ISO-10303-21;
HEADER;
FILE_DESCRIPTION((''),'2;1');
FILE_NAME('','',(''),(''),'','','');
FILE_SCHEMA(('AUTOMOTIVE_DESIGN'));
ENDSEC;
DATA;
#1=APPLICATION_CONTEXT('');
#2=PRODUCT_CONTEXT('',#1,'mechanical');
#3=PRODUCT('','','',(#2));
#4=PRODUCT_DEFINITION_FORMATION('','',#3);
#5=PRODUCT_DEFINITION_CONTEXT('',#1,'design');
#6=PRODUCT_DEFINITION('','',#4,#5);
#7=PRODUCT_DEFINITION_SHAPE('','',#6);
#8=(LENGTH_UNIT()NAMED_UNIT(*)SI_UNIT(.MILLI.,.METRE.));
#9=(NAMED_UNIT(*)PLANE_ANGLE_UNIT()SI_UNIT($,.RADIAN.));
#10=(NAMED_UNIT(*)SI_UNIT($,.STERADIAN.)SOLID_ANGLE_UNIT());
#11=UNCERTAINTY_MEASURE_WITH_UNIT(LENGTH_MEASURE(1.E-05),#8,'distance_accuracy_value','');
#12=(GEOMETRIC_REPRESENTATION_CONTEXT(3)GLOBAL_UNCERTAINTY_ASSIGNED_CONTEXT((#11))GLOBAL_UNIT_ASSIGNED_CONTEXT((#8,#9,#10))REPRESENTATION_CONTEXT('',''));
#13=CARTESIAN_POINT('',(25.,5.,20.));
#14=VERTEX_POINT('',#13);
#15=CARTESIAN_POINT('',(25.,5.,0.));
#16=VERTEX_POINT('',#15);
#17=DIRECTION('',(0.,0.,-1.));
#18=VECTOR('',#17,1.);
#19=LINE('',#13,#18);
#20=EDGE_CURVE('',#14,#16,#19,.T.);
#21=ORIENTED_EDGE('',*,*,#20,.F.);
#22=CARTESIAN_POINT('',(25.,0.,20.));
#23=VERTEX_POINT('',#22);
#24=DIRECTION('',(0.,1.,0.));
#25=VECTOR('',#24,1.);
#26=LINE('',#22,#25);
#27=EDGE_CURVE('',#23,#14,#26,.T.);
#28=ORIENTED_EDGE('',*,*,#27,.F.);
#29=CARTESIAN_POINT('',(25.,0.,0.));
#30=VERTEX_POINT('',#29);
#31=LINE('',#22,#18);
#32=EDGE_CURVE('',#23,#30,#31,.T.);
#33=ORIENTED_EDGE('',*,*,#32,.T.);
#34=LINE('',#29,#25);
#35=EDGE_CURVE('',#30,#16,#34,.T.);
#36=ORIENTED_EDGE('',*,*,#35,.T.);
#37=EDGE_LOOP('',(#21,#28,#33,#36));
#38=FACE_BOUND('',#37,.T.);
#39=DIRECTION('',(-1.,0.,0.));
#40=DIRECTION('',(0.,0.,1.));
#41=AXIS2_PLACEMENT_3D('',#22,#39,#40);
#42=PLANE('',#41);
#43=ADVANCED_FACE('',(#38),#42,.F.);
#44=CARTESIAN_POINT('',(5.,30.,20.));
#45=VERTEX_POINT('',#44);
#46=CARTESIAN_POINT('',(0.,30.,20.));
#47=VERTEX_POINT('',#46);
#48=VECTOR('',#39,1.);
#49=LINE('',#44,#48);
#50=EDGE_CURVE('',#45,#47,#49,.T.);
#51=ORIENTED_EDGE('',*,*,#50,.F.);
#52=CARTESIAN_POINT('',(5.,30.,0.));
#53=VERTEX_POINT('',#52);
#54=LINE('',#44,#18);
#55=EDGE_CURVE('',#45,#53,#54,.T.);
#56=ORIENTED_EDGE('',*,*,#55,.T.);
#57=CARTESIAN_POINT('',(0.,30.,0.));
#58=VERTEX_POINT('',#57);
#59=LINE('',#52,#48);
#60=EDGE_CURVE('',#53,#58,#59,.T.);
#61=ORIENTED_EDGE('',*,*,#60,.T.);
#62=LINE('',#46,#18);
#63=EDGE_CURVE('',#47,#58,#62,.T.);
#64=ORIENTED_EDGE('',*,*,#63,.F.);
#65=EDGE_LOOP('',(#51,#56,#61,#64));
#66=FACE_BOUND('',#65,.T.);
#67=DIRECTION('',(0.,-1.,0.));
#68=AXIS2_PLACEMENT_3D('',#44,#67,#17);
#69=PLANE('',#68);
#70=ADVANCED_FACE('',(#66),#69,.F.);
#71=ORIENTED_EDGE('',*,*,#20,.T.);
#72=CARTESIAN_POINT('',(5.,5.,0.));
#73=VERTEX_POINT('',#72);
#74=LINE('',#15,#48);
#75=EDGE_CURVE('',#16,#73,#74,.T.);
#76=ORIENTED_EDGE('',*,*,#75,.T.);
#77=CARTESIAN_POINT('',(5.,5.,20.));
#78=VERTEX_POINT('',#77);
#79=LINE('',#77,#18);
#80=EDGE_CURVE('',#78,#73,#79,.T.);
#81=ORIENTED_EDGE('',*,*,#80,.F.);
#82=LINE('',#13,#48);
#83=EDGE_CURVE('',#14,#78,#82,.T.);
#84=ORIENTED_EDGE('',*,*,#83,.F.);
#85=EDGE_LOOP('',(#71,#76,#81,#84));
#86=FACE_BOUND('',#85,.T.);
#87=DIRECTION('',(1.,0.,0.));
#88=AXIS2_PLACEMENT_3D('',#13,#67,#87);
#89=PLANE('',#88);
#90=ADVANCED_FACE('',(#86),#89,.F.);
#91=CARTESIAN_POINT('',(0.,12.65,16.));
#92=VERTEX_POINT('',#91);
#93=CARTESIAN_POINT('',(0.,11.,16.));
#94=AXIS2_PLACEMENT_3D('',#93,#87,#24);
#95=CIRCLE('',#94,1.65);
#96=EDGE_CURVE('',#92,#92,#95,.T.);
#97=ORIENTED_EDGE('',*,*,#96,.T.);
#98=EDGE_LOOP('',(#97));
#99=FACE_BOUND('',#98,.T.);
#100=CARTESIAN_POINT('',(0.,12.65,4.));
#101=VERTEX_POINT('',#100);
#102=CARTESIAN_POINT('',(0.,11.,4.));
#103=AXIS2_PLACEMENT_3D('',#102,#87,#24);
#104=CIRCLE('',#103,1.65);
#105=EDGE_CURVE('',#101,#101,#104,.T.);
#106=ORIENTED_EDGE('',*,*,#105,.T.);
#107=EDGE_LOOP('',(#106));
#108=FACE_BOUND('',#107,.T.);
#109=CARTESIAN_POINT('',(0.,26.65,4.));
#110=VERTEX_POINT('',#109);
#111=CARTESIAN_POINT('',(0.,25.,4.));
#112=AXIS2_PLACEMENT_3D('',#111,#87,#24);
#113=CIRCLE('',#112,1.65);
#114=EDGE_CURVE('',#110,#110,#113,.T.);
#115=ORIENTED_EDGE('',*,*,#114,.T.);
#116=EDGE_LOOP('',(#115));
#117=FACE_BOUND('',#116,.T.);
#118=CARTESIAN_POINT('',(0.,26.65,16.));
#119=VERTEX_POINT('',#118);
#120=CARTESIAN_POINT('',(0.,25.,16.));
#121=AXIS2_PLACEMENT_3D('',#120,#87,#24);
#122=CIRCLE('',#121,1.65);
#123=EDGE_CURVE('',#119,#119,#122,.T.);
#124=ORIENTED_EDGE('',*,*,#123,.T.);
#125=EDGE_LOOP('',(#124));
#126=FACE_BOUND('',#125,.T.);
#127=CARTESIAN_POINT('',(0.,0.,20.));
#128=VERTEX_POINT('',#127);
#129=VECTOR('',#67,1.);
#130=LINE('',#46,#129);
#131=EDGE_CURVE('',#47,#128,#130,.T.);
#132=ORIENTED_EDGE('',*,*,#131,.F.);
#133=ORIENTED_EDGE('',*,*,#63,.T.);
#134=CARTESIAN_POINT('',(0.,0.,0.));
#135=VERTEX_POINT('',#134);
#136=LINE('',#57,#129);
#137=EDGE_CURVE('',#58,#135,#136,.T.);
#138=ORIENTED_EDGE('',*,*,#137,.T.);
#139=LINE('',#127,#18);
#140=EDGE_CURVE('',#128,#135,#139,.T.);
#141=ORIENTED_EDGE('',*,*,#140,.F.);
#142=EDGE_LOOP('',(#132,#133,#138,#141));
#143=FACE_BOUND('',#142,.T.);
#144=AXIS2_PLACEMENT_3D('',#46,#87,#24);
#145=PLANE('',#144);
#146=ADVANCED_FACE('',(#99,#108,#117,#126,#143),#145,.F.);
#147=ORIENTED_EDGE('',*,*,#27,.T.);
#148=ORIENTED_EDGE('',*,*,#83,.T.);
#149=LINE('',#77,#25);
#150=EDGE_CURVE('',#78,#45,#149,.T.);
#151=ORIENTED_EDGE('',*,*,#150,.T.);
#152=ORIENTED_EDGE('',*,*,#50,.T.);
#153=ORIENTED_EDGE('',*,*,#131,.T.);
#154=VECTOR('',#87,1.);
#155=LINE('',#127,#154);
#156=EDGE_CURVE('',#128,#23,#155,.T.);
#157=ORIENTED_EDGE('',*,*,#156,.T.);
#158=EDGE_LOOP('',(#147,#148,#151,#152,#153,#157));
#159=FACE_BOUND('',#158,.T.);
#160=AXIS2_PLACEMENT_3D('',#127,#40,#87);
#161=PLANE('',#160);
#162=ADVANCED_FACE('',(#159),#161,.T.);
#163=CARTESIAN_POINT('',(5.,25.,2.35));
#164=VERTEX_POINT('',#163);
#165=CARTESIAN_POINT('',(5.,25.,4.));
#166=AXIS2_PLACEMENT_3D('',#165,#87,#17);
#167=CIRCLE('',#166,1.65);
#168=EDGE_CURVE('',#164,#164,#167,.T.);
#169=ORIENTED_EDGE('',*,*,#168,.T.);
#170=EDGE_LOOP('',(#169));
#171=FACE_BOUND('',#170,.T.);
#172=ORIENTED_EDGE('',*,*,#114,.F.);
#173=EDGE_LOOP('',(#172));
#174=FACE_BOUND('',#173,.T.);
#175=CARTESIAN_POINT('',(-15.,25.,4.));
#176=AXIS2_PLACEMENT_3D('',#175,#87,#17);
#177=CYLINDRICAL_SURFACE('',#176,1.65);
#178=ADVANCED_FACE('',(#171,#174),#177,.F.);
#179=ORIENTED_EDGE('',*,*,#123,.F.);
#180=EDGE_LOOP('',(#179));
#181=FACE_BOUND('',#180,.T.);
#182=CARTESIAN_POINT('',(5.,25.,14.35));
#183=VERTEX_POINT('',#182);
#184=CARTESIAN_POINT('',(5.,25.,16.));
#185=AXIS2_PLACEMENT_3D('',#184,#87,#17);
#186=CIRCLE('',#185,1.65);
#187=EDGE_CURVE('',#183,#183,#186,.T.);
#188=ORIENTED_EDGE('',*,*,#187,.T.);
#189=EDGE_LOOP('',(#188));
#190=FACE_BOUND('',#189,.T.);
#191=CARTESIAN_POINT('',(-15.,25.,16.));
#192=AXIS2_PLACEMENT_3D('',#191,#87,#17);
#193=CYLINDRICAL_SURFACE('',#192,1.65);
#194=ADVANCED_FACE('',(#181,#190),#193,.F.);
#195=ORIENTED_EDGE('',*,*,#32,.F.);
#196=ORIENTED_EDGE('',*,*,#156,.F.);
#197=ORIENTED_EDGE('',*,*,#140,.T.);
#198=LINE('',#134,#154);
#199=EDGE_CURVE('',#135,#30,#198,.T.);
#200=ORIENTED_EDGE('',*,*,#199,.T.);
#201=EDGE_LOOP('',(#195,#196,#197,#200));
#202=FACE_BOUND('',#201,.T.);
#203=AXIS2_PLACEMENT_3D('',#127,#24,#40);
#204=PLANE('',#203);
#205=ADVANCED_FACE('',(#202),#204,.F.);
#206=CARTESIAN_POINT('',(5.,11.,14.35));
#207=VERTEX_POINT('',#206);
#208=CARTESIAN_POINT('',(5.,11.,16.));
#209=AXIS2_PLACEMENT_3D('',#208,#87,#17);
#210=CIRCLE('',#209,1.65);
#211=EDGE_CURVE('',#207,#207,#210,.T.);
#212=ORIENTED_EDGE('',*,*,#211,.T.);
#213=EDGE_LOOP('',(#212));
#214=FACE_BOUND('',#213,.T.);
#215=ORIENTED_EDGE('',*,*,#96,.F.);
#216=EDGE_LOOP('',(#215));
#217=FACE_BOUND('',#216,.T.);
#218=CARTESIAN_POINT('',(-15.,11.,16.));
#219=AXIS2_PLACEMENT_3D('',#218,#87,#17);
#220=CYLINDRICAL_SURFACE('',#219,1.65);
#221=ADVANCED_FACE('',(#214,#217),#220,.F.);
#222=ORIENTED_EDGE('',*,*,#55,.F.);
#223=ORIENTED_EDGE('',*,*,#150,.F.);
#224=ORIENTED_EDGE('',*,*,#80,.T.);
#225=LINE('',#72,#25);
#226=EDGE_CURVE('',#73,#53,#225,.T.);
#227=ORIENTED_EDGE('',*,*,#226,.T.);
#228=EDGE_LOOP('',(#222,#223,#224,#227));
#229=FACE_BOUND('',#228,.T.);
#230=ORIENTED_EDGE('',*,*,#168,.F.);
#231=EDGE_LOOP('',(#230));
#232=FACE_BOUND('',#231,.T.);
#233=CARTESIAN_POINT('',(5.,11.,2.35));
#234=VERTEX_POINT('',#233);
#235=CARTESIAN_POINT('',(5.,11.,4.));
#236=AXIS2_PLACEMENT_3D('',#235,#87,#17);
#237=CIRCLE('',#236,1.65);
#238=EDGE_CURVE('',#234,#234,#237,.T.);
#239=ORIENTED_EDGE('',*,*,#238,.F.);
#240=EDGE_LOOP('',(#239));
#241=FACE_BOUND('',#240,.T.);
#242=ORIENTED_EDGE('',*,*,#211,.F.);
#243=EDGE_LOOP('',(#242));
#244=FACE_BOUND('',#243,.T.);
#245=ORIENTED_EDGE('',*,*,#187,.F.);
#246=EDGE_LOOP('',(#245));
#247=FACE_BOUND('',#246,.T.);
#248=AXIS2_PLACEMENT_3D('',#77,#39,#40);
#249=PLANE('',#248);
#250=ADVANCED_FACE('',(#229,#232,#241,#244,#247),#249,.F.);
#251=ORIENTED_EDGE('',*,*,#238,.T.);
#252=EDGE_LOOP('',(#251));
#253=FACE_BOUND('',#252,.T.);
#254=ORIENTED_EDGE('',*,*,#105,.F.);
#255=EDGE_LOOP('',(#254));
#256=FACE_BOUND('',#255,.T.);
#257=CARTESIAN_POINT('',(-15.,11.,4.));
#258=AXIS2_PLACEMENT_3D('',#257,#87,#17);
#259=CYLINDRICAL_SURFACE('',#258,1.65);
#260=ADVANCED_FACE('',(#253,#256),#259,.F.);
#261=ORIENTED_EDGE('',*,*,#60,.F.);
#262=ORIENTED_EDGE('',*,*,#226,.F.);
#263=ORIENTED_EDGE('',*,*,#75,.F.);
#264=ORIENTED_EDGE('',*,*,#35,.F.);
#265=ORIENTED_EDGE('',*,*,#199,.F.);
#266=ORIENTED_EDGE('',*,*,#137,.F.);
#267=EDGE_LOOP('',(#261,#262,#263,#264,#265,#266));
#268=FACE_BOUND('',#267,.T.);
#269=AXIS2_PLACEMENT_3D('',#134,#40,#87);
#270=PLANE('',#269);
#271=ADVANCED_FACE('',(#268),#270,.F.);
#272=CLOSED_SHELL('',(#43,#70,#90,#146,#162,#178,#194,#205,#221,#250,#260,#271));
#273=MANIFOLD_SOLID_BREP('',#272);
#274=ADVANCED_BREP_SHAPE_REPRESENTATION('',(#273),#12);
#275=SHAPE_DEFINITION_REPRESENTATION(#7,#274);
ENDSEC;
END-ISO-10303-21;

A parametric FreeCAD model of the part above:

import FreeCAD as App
import Part
import Sketcher
Q = App.Units.Quantity


def add_polygon(sketch, points):
    """Adds a closed chain of lines whose ends are joined by coincident constraints."""
    first, n = sketch.GeometryCount, len(points)
    for a, b in zip(points, points[1:] + points[:1]):
        sketch.addGeometry(Part.LineSegment(App.Vector(*a, 0), App.Vector(*b, 0)), False)
    for i in range(n):
        sketch.addConstraint(Sketcher.Constraint("Coincident", first + i, 2, first + (i + 1) % n, 1))

doc = App.newDocument("Part")
body = doc.addObject("PartDesign::Body", "Body")

# Sketch on XY plane
sketch1 = body.newObject("Sketcher::SketchObject", "Sketch")
sketch1.AttachmentSupport = (doc.getObject("XY_Plane"), [""])
sketch1.MapMode = "FlatFace"
add_polygon(sketch1, [(0, 30), (0, 0), (25, 0), (25, 5), (5, 5), (5, 30)])  # lines 0-5
sketch1.addConstraint(Sketcher.Constraint("Vertical", 0))
sketch1.addConstraint(Sketcher.Constraint("Horizontal", 1))
sketch1.addConstraint(Sketcher.Constraint("Vertical", 2))
sketch1.addConstraint(Sketcher.Constraint("Horizontal", 3))
sketch1.addConstraint(Sketcher.Constraint("Vertical", 4))
sketch1.addConstraint(Sketcher.Constraint("Horizontal", 5))
sketch1.addConstraint(Sketcher.Constraint("Coincident", 0, 2, -1, 1))
sketch1.addConstraint(Sketcher.Constraint("Equal", 5, 2))
sketch1.addConstraint(Sketcher.Constraint("Equal", 1, 4))
sketch1.addConstraint(Sketcher.Constraint("DistanceX", 1, 1, 1, 2, Q("25 mm")))
sketch1.addConstraint(Sketcher.Constraint("DistanceX", 3, 2, 3, 1, Q("20 mm")))
pad1 = body.newObject("PartDesign::Pad", "Pad")
pad1.Profile = sketch1
pad1.Length = 20

# Sketch on YZ plane
sketch2 = body.newObject("Sketcher::SketchObject", "Sketch001")
sketch2.AttachmentSupport = (doc.getObject("YZ_Plane"), [""])
sketch2.MapMode = "FlatFace"
sketch2.AttachmentOffset = App.Placement(App.Vector(0, 0, 5), App.Rotation())
sketch2.addGeometry(Part.Circle(App.Vector(25, 16, 0), App.Vector(0, 0, 1), 1.6), False)
sketch2.addGeometry(Part.Circle(App.Vector(25, 4, 0), App.Vector(0, 0, 1), 1.6), False)
sketch2.addGeometry(Part.Circle(App.Vector(11, 4, 0), App.Vector(0, 0, 1), 1.6), False)
sketch2.addGeometry(Part.Circle(App.Vector(11, 16, 0), App.Vector(0, 0, 1), 1.6), False)
sketch2.addConstraint(Sketcher.Constraint("Equal", 0, 1))
sketch2.addConstraint(Sketcher.Constraint("Equal", 1, 2))
sketch2.addConstraint(Sketcher.Constraint("Equal", 2, 3))
sketch2.addConstraint(Sketcher.Constraint("Horizontal", 1, 3, 2, 3))
sketch2.addConstraint(Sketcher.Constraint("Horizontal", 0, 3, 3, 3))
sketch2.addConstraint(Sketcher.Constraint("Vertical", 0, 3, 1, 3))
sketch2.addConstraint(Sketcher.Constraint("Vertical", 2, 3, 3, 3))
sketch2.addConstraint(Sketcher.Constraint("Diameter", 0, Q("3.3 mm")))
sketch2.addConstraint(Sketcher.Constraint("DistanceX", -1, 1, 0, 3, Q("25 mm")))
sketch2.addConstraint(Sketcher.Constraint("DistanceY", -1, 1, 0, 3, Q("16 mm")))
sketch2.addConstraint(Sketcher.Constraint("DistanceY", -1, 1, 1, 3, Q("4 mm")))
sketch2.addConstraint(Sketcher.Constraint("DistanceX", -1, 1, 2, 3, Q("11 mm")))
pocket1 = body.newObject("PartDesign::Pocket", "Pocket")
pocket1.Profile = sketch2
pocket1.Length = 20

doc.recompute()
